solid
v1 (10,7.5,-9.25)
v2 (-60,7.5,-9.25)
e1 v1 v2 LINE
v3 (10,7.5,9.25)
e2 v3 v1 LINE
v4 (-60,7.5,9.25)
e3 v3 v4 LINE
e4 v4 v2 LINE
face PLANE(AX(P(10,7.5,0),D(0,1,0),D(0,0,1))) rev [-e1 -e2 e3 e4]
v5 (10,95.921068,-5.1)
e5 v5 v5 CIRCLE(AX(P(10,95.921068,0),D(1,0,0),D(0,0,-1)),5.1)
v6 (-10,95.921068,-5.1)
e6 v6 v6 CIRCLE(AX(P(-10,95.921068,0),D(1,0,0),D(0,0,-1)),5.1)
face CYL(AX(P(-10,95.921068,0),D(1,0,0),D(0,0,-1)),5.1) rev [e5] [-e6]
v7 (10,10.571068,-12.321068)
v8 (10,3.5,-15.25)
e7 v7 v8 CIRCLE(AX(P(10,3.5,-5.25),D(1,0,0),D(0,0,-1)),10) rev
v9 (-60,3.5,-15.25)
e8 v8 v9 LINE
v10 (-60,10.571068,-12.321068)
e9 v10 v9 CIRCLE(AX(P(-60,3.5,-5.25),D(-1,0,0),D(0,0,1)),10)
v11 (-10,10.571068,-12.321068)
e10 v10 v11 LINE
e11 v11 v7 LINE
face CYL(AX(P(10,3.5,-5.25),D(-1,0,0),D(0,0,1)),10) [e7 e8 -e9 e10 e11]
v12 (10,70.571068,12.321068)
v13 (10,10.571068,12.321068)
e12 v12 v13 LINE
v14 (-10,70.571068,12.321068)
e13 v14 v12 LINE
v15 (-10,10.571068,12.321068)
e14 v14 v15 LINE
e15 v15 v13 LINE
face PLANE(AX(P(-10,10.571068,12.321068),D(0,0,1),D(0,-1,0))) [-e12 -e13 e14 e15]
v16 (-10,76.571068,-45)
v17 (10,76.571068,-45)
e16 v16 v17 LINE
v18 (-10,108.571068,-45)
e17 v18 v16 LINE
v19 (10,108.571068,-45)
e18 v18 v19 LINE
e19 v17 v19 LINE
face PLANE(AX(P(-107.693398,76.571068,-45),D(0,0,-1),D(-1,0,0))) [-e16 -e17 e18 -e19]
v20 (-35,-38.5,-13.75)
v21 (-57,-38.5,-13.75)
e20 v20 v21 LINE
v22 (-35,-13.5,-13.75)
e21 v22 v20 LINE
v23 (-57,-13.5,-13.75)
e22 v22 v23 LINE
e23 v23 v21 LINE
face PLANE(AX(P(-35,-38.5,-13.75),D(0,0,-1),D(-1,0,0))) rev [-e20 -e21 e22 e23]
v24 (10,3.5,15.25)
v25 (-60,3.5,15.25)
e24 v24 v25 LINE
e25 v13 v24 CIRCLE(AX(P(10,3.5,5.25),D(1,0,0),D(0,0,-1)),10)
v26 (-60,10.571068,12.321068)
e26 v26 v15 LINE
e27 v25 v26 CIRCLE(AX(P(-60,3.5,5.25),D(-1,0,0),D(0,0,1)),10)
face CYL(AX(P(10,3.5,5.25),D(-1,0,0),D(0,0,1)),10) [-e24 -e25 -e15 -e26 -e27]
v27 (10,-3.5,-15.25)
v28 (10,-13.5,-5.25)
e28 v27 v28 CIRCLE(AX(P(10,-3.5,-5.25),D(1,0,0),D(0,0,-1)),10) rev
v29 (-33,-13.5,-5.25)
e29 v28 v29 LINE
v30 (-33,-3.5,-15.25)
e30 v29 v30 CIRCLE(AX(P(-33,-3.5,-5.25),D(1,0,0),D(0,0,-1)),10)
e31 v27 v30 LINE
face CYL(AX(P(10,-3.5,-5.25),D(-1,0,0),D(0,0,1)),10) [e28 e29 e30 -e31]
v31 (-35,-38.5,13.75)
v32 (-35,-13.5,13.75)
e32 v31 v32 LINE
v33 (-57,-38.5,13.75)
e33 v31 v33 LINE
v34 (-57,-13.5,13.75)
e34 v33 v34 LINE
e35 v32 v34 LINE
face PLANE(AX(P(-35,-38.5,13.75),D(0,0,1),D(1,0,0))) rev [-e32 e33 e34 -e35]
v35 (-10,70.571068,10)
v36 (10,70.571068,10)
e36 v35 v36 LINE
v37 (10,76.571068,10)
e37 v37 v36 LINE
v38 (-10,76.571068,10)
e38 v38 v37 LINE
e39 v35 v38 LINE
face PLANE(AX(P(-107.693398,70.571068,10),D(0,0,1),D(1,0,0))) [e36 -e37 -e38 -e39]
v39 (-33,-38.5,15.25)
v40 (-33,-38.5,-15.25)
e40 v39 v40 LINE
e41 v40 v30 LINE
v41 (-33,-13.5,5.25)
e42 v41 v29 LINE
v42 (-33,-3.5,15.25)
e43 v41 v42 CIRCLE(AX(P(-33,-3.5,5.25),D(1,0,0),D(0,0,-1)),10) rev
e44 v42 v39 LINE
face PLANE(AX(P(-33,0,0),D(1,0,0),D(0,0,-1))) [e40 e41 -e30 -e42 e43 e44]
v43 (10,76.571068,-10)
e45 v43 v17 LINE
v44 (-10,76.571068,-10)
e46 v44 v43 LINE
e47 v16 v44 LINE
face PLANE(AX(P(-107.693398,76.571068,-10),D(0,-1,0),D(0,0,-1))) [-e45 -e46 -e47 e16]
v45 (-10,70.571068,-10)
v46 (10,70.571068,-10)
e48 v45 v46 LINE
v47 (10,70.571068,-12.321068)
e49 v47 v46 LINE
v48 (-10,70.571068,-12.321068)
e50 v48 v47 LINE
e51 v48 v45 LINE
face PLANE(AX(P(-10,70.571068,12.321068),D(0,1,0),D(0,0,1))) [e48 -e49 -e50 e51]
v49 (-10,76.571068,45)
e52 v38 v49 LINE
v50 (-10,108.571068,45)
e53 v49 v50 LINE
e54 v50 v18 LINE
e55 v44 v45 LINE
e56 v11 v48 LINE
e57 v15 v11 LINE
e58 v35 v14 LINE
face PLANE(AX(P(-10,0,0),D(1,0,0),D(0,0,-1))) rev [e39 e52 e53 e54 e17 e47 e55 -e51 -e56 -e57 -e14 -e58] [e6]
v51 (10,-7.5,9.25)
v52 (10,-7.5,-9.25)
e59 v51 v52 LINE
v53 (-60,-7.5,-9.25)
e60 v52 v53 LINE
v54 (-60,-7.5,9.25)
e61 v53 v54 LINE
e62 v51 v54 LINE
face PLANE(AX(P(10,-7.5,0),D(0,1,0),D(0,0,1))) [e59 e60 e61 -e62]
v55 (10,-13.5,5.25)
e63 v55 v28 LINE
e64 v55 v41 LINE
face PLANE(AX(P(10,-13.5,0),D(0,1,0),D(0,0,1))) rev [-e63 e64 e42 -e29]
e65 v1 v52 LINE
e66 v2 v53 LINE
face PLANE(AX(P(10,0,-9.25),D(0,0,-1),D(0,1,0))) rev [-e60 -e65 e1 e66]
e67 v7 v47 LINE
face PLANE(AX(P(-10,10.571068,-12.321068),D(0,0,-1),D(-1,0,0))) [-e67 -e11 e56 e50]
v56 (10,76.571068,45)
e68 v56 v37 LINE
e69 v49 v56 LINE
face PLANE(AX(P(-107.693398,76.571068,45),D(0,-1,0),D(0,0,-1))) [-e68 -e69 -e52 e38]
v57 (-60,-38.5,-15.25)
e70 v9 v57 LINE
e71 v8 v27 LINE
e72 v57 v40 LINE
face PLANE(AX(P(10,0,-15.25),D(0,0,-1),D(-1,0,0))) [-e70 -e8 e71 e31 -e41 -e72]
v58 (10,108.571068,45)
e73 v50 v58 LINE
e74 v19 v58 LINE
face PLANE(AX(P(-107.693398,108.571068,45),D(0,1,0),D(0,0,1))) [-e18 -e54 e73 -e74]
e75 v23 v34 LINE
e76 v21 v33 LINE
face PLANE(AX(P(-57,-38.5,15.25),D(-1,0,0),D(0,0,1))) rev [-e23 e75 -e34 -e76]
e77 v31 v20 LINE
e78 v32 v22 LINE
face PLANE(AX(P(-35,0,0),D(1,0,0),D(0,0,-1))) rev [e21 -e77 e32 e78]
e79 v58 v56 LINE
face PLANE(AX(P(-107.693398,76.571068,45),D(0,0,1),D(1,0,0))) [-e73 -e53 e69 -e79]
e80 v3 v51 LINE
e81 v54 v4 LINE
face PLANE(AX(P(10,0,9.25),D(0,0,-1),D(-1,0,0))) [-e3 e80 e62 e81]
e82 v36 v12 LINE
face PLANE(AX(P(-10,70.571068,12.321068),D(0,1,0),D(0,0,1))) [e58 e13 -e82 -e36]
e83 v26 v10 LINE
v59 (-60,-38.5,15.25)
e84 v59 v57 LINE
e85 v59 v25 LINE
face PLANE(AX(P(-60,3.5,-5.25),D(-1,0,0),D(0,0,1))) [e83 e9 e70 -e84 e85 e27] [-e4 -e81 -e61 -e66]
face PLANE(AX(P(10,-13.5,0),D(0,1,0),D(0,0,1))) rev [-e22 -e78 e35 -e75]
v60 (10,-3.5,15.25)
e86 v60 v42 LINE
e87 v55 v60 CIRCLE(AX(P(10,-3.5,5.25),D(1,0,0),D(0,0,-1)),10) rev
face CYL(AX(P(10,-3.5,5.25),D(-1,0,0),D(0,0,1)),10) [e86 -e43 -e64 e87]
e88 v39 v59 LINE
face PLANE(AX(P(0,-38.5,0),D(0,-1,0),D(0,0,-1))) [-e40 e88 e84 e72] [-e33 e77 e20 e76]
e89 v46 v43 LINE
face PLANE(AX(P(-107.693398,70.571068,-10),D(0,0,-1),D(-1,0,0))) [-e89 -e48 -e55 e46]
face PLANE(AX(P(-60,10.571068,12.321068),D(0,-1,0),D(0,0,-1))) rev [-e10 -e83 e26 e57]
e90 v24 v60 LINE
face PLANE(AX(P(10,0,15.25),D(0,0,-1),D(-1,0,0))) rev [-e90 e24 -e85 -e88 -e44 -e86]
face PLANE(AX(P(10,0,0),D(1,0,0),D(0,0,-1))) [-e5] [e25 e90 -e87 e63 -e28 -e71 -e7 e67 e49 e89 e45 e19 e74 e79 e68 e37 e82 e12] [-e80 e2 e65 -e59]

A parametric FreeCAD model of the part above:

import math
import FreeCAD as App
import Part
import Sketcher
from FreeCAD import Vector


def add_polygon(sketch, points):
    """Adds a closed chain of lines whose ends are joined by coincident constraints."""
    first, n = sketch.GeometryCount, len(points)
    for a, b in zip(points, points[1:] + points[:1]):
        sketch.addGeometry(Part.LineSegment(App.Vector(*a, 0), App.Vector(*b, 0)), False)
    for i in range(n):
        sketch.addConstraint(Sketcher.Constraint("Coincident", first + i, 2, first + (i + 1) % n, 1))

doc = App.newDocument("Part")
body = doc.addObject("PartDesign::Body", "Body")

sketch1 = body.newObject("Sketcher::SketchObject", "Sketch")
sketch1.AttachmentSupport = (doc.getObject("YZ_Plane"), [""])
sketch1.MapMode = "FlatFace"
sketch1.addGeometry(Part.LineSegment(Vector(14, -5, 0), Vector(14, 5, 0)), False)
sketch1.addGeometry(Part.ArcOfCircle(Part.Circle(Vector(4, 5, 0), Vector(0, 0, 1), 10), math.radians(0), math.radians(90)), False)
sketch1.addGeometry(Part.LineSegment(Vector(4, 15, 0), Vector(-4, 15, 0)), False)
sketch1.addGeometry(Part.ArcOfCircle(Part.Circle(Vector(-4, 5, 0), Vector(0, 0, 1), 10), math.radians(90), math.radians(180)), False)
sketch1.addGeometry(Part.LineSegment(Vector(-14, 5, 0), Vector(-14, -5, 0)), False)
sketch1.addGeometry(Part.ArcOfCircle(Part.Circle(Vector(-4, -5, 0), Vector(0, 0, 1), 10), math.radians(180), math.radians(270)), False)
sketch1.addGeometry(Part.LineSegment(Vector(-4, -15, 0), Vector(4, -15, 0)), False)
sketch1.addGeometry(Part.ArcOfCircle(Part.Circle(Vector(4, -5, 0), Vector(0, 0, 1), 10), math.radians(-90), math.radians(0)), False)
add_polygon(sketch1, [(-8, -9), (-8, 9), (8, 9), (8, -9)])
sketch1.addConstraint(Sketcher.Constraint("Tangent", 0, 2, 1, 1))
sketch1.addConstraint(Sketcher.Constraint("Tangent", 1, 2, 2, 1))
sketch1.addConstraint(Sketcher.Constraint("Tangent", 2, 2, 3, 1))
sketch1.addConstraint(Sketcher.Constraint("Tangent", 3, 2, 4, 1))
sketch1.addConstraint(Sketcher.Constraint("Tangent", 4, 2, 5, 1))
sketch1.addConstraint(Sketcher.Constraint("Tangent", 5, 2, 6, 1))
sketch1.addConstraint(Sketcher.Constraint("Tangent", 6, 2, 7, 1))
sketch1.addConstraint(Sketcher.Constraint("Tangent", 7, 2, 0, 1))
sketch1.addConstraint(Sketcher.Constraint("Vertical", 0))
sketch1.addConstraint(Sketcher.Constraint("Horizontal", 2))
sketch1.addConstraint(Sketcher.Constraint("Vertical", 4))
sketch1.addConstraint(Sketcher.Constraint("Horizontal", 6))
sketch1.addConstraint(Sketcher.Constraint("Vertical", 8))
sketch1.addConstraint(Sketcher.Constraint("Horizontal", 9))
sketch1.addConstraint(Sketcher.Constraint("Vertical", 10))
sketch1.addConstraint(Sketcher.Constraint("Horizontal", 11))
sketch1.addConstraint(Sketcher.Constraint("Equal", 1, 3))
sketch1.addConstraint(Sketcher.Constraint("Equal", 3, 5))
sketch1.addConstraint(Sketcher.Constraint("Equal", 5, 7))
sketch1.addConstraint(Sketcher.Constraint("Symmetric", 1, 3, 5, 3, -1, 1))
sketch1.addConstraint(Sketcher.Constraint("Symmetric", 8, 2, 10, 2, -1, 1))
sketch1.addConstraint(Sketcher.Constraint("Radius", 1, 10.0))
sketch1.addConstraint(Sketcher.Constraint("DistanceX", 2, 2, 2, 1, 7.0))
sketch1.addConstraint(Sketcher.Constraint("DistanceX", 9, 1, 9, 2, 15.0))
sketch1.addConstraint(Sketcher.Constraint("DistanceY", 0, 1, 0, 2, 10.5))
sketch1.addConstraint(Sketcher.Constraint("DistanceY", 8, 1, 8, 2, 18.5))
pad1 = body.newObject("PartDesign::Pad", "Pad")
pad1.Profile = sketch1
pad1.Length = 20
pad1.Midplane = True

sketch2 = body.newObject("Sketcher::SketchObject", "Sketch001")
sketch2.AttachmentSupport = (doc.getObject("YZ_Plane"), [""])
sketch2.MapMode = "FlatFace"
sketch2.AttachmentOffset = App.Placement(Vector(0, 0, 10), App.Rotation())
add_polygon(sketch2, [(11, 12), (11, -12), (71, -12), (71, 12)])
sketch2.addConstraint(Sketcher.Constraint("Vertical", 0))
sketch2.addConstraint(Sketcher.Constraint("Horizontal", 1))
sketch2.addConstraint(Sketcher.Constraint("Vertical", 2))
sketch2.addConstraint(Sketcher.Constraint("Horizontal", 3))
sketch2.addConstraint(Sketcher.Constraint("DistanceX", 1, 1, 1, 2, 60.0))
sketch2.addConstraint(Sketcher.Constraint("DistanceY", 0, 2, 0, 1, 24.642136))
sketch2.addConstraint(Sketcher.Constraint("DistanceX", -1, 1, 0, 2, 10.571068))
sketch2.addConstraint(Sketcher.Constraint("DistanceY", 0, 2, -1, 1, 12.321068))
pad2 = body.newObject("PartDesign::Pad", "Pad001")
pad2.Profile = sketch2
pad2.Length = 20
pad2.Reversed = True

sketch3 = body.newObject("Sketcher::SketchObject", "Sketch002")
sketch3.AttachmentSupport = (doc.getObject("YZ_Plane"), [""])
sketch3.MapMode = "FlatFace"
sketch3.AttachmentOffset = App.Placement(Vector(0, 0, 10), App.Rotation())
add_polygon(sketch3, [(77, 10), (71, 10), (71, -10), (77, -10), (77, -45), (109, -45), (109, 45), (77, 45)])
sketch3.addConstraint(Sketcher.Constraint("Horizontal", 0))
sketch3.addConstraint(Sketcher.Constraint("Vertical", 1))
sketch3.addConstraint(Sketcher.Constraint("Horizontal", 2))
sketch3.addConstraint(Sketcher.Constraint("Vertical", 3))
sketch3.addConstraint(Sketcher.Constraint("Horizontal", 4))
sketch3.addConstraint(Sketcher.Constraint("Vertical", 5))
sketch3.addConstraint(Sketcher.Constraint("Horizontal", 6))
sketch3.addConstraint(Sketcher.Constraint("Vertical", 7))
sketch3.addConstraint(Sketcher.Constraint("Symmetric", 3, 2, 6, 2, -1))
sketch3.addConstraint(Sketcher.Constraint("Equal", 3, 7))
sketch3.addConstraint(Sketcher.Constraint("DistanceX", 0, 2, 0, 1, 6.0))
sketch3.addConstraint(Sketcher.Constraint("DistanceX", 4, 1, 4, 2, 32.0))
sketch3.addConstraint(Sketcher.Constraint("DistanceY", 1, 2, 1, 1, 20.0))
sketch3.addConstraint(Sketcher.Constraint("DistanceY", 3, 2, 3, 1, 35.0))
sketch3.addConstraint(Sketcher.Constraint("DistanceX", -1, 1, 0, 2, 70.571068))
pad3 = body.newObject("PartDesign::Pad", "Pad002")
pad3.Profile = sketch3
pad3.Length = 20
pad3.Reversed = True

sketch4 = body.newObject("Sketcher::SketchObject", "Sketch003")
sketch4.AttachmentSupport = (doc.getObject("YZ_Plane"), [""])
sketch4.MapMode = "FlatFace"
sketch4.AttachmentOffset = App.Placement(Vector(0, 0, 10), App.Rotation())
sketch4.addGeometry(Part.Circle(Vector(96, 0, 0), Vector(0, 0, 1), 5), False)
sketch4.addConstraint(Sketcher.Constraint("PointOnObject", 0, 3, -1))
sketch4.addConstraint(Sketcher.Constraint("Diameter", 0, 10.2))
sketch4.addConstraint(Sketcher.Constraint("DistanceX", -1, 1, 0, 3, 95.921068))
pocket1 = body.newObject("PartDesign::Pocket", "Pocket")
pocket1.Profile = sketch4
pocket1.Type = "ThroughAll"

sketch5 = body.newObject("Sketcher::SketchObject", "Sketch004")
sketch5.AttachmentSupport = (doc.getObject("YZ_Plane"), [""])
sketch5.MapMode = "FlatFace"
sketch5.AttachmentOffset = App.Placement(Vector(0, 0, -10), App.Rotation())
sketch5.addGeometry(Part.LineSegment(Vector(11, 12, 0), Vector(11, -12, 0)), False)
sketch5.addGeometry(Part.ArcOfCircle(Part.Circle(Vector(4, -5, 0), Vector(0, 0, 1), 10), math.radians(-90), math.radians(-45)), False)
sketch5.addGeometry(Part.LineSegment(Vector(4, -15, 0), Vector(-4, -15, 0)), False)
sketch5.addGeometry(Part.ArcOfCircle(Part.Circle(Vector(-4, -5, 0), Vector(0, 0, 1), 10), math.radians(180), math.radians(270)), False)
sketch5.addGeometry(Part.LineSegment(Vector(-14, -5, 0), Vector(-14, 5, 0)), False)
sketch5.addGeometry(Part.ArcOfCircle(Part.Circle(Vector(-4, 5, 0), Vector(0, 0, 1), 10), math.radians(90), math.radians(180)), False)
sketch5.addGeometry(Part.LineSegment(Vector(-4, 15, 0), Vector(4, 15, 0)), False)
sketch5.addGeometry(Part.ArcOfCircle(Part.Circle(Vector(4, 5, 0), Vector(0, 0, 1), 10), math.radians(45), math.radians(90)), False)
add_polygon(sketch5, [(-8, -9), (8, -9), (8, 9), (-8, 9)])
sketch5.addConstraint(Sketcher.Constraint("Coincident", 0, 2, 1, 2))
sketch5.addConstraint(Sketcher.Constraint("Tangent", 1, 1, 2, 1))
sketch5.addConstraint(Sketcher.Constraint("Tangent", 2, 2, 3, 2))
sketch5.addConstraint(Sketcher.Constraint("Tangent", 3, 1, 4, 1))
sketch5.addConstraint(Sketcher.Constraint("Tangent", 4, 2, 5, 2))
sketch5.addConstraint(Sketcher.Constraint("Tangent", 5, 1, 6, 1))
sketch5.addConstraint(Sketcher.Constraint("Tangent", 6, 2, 7, 2))
sketch5.addConstraint(Sketcher.Constraint("Coincident", 7, 1, 0, 1))
sketch5.addConstraint(Sketcher.Constraint("Vertical", 0))
sketch5.addConstraint(Sketcher.Constraint("Horizontal", 2))
sketch5.addConstraint(Sketcher.Constraint("Vertical", 4))
sketch5.addConstraint(Sketcher.Constraint("Horizontal", 6))
sketch5.addConstraint(Sketcher.Constraint("Horizontal", 8))
sketch5.addConstraint(Sketcher.Constraint("Vertical", 9))
sketch5.addConstraint(Sketcher.Constraint("Horizontal", 10))
sketch5.addConstraint(Sketcher.Constraint("Vertical", 11))
sketch5.addConstraint(Sketcher.Constraint("Equal", 1, 3))
sketch5.addConstraint(Sketcher.Constraint("Equal", 3, 5))
sketch5.addConstraint(Sketcher.Constraint("Equal", 5, 7))
sketch5.addConstraint(Sketcher.Constraint("Symmetric", 1, 3, 5, 3, -1, 1))
sketch5.addConstraint(Sketcher.Constraint("Symmetric", 8, 2, 10, 2, -1, 1))
sketch5.addConstraint(Sketcher.Constraint("Vertical", 1, 3, 7, 3))
sketch5.addConstraint(Sketcher.Constraint("Radius", 1, 10.0))
sketch5.addConstraint(Sketcher.Constraint("DistanceX", 2, 2, 2, 1, 7.0))
sketch5.addConstraint(Sketcher.Constraint("DistanceX", 8, 1, 8, 2, 15.0))
sketch5.addConstraint(Sketcher.Constraint("DistanceY", 4, 1, 4, 2, 10.5))
sketch5.addConstraint(Sketcher.Constraint("DistanceY", 9, 1, 9, 2, 18.5))
sketch5.addConstraint(Sketcher.Constraint("DistanceY", 0, 2, 0, 1, 24.642136))
pad4 = body.newObject("PartDesign::Pad", "Pad003")
pad4.Profile = sketch5
pad4.Length = 50
pad4.Reversed = True

sketch6 = body.newObject("Sketcher::SketchObject", "Sketch005")
sketch6.AttachmentSupport = (doc.getObject("YZ_Plane"), [""])
sketch6.MapMode = "FlatFace"
sketch6.AttachmentOffset = App.Placement(Vector(0, 0, -60), App.Rotation())
add_polygon(sketch6, [(-13.5, 15.2), (-3.5, 15.2), (-3.5, 9.2), (-7.5, 9.2), (-7.5, -9.2), (-3.5, -9.2), (-3.5, -15.2), (-13.5, -15.2)])
sketch6.addConstraint(Sketcher.Constraint("Horizontal", 0))
sketch6.addConstraint(Sketcher.Constraint("Vertical", 1))
sketch6.addConstraint(Sketcher.Constraint("Horizontal", 2))
sketch6.addConstraint(Sketcher.Constraint("Vertical", 3))
sketch6.addConstraint(Sketcher.Constraint("Horizontal", 4))
sketch6.addConstraint(Sketcher.Constraint("Vertical", 5))
sketch6.addConstraint(Sketcher.Constraint("Horizontal", 6))
sketch6.addConstraint(Sketcher.Constraint("Vertical", 7))
sketch6.addConstraint(Sketcher.Constraint("Symmetric", 1, 2, 4, 2, -1))
sketch6.addConstraint(Sketcher.Constraint("Equal", 1, 5))
sketch6.addConstraint(Sketcher.Constraint("DistanceX", 0, 1, 0, 2, 10.0))
sketch6.addConstraint(Sketcher.Constraint("DistanceX", 2, 2, 2, 1, 4.0))
sketch6.addConstraint(Sketcher.Constraint("DistanceY", 1, 2, 1, 1, 6.0))
sketch6.addConstraint(Sketcher.Constraint("DistanceY", 3, 2, 3, 1, 18.5))
sketch6.addConstraint(Sketcher.Constraint("DistanceX", 0, 2, -1, 1, 3.5))
pad5 = body.newObject("PartDesign::Pad", "Pad004")
pad5.Profile = sketch6
pad5.Length = 25

sketch7 = body.newObject("Sketcher::SketchObject", "Sketch006")
sketch7.AttachmentSupport = (doc.getObject("XZ_Plane"), [""])
sketch7.MapMode = "FlatFace"
sketch7.AttachmentOffset = App.Placement(Vector(0, 0, 13.5), App.Rotation())
add_polygon(sketch7, [(-60, 15.2), (-60, -15.2), (-57, -15.2), (-57, 15.2)])
sketch7.addConstraint(Sketcher.Constraint("Vertical", 0))
sketch7.addConstraint(Sketcher.Constraint("Horizontal", 1))
sketch7.addConstraint(Sketcher.Constraint("Vertical", 2))
sketch7.addConstraint(Sketcher.Constraint("Horizontal", 3))
sketch7.addConstraint(Sketcher.Constraint("DistanceX", 1, 1, 1, 2, 3.0))
sketch7.addConstraint(Sketcher.Constraint("DistanceY", 0, 2, 0, 1, 30.5))
sketch7.addConstraint(Sketcher.Constraint("DistanceX", 0, 2, -1, 1, 60.0))
sketch7.addConstraint(Sketcher.Constraint("DistanceY", 0, 2, -1, 1, 15.25))
pad6 = body.newObject("PartDesign::Pad", "Pad005")
pad6.Profile = sketch7
pad6.Length = 25

sketch8 = body.newObject("Sketcher::SketchObject", "Sketch007")
sketch8.AttachmentSupport = (doc.getObject("YZ_Plane"), [""])
sketch8.MapMode = "FlatFace"
sketch8.AttachmentOffset = App.Placement(Vector(0, 0, -57), App.Rotation())
add_polygon(sketch8, [(-38.5, 15.2), (-38.5, 13.8), (-13.5, 13.8), (-13.5, 15.2)])
add_polygon(sketch8, [(-38.5, -13.8), (-38.5, -15.2), (-13.5, -15.2), (-13.5, -13.8)])
sketch8.addConstraint(Sketcher.Constraint("Vertical", 0))
sketch8.addConstraint(Sketcher.Constraint("Horizontal", 1))
sketch8.addConstraint(Sketcher.Constraint("Vertical", 2))
sketch8.addConstraint(Sketcher.Constraint("Horizontal", 3))
sketch8.addConstraint(Sketcher.Constraint("Vertical", 4))
sketch8.addConstraint(Sketcher.Constraint("Horizontal", 5))
sketch8.addConstraint(Sketcher.Constraint("Vertical", 6))
sketch8.addConstraint(Sketcher.Constraint("Horizontal", 7))
sketch8.addConstraint(Sketcher.Constraint("Symmetric", 3, 2, 4, 2, -1))
sketch8.addConstraint(Sketcher.Constraint("Symmetric", 1, 2, 6, 2, -1))
sketch8.addConstraint(Sketcher.Constraint("DistanceX", 1, 1, 1, 2, 25.0))
sketch8.addConstraint(Sketcher.Constraint("DistanceY", 0, 2, 0, 1, 1.5))
sketch8.addConstraint(Sketcher.Constraint("DistanceY", 4, 2, 0, 2, 29.0))
sketch8.addConstraint(Sketcher.Constraint("DistanceX", 0, 2, -1, 1, 38.5))
pad7 = body.newObject("PartDesign::Pad", "Pad006")
pad7.Profile = sketch8
pad7.Length = 22

sketch9 = body.newObject("Sketcher::SketchObject", "Sketch008")
sketch9.AttachmentSupport = (doc.getObject("YZ_Plane"), [""])
sketch9.MapMode = "FlatFace"
sketch9.AttachmentOffset = App.Placement(Vector(0, 0, -33), App.Rotation())
sketch9.addGeometry(Part.LineSegment(Vector(-4, 15, 0), Vector(-38, 15, 0)), False)
sketch9.addGeometry(Part.LineSegment(Vector(-38, 15, 0), Vector(-38, -15, 0)), False)
sketch9.addGeometry(Part.LineSegment(Vector(-38, -15, 0), Vector(-4, -15, 0)), False)
sketch9.addGeometry(Part.ArcOfCircle(Part.Circle(Vector(-4, -5, 0), Vector(0, 0, 1), 10), math.radians(180), math.radians(270)), False)
sketch9.addGeometry(Part.LineSegment(Vector(-14, -5, 0), Vector(-14, 5, 0)), False)
sketch9.addGeometry(Part.ArcOfCircle(Part.Circle(Vector(-4, 5, 0), Vector(0, 0, 1), 10), math.radians(90), math.radians(180)), False)
sketch9.addConstraint(Sketcher.Constraint("Coincident", 0, 2, 1, 1))
sketch9.addConstraint(Sketcher.Constraint("Coincident", 1, 2, 2, 1))
sketch9.addConstraint(Sketcher.Constraint("Tangent", 2, 2, 3, 2))
sketch9.addConstraint(Sketcher.Constraint("Tangent", 3, 1, 4, 1))
sketch9.addConstraint(Sketcher.Constraint("Tangent", 4, 2, 5, 2))
sketch9.addConstraint(Sketcher.Constraint("Tangent", 5, 1, 0, 1))
sketch9.addConstraint(Sketcher.Constraint("Horizontal", 0))
sketch9.addConstraint(Sketcher.Constraint("Vertical", 1))
sketch9.addConstraint(Sketcher.Constraint("Horizontal", 2))
sketch9.addConstraint(Sketcher.Constraint("Vertical", 4))
sketch9.addConstraint(Sketcher.Constraint("Equal", 3, 5))
sketch9.addConstraint(Sketcher.Constraint("Radius", 3, 10.0))
sketch9.addConstraint(Sketcher.Constraint("DistanceX", 0, 2, 0, 1, 35.0))
sketch9.addConstraint(Sketcher.Constraint("DistanceY", 1, 2, 1, 1, 30.5))
sketch9.addConstraint(Sketcher.Constraint("DistanceX", 3, 3, -1, 1, 3.5))
sketch9.addConstraint(Sketcher.Constraint("DistanceY", 3, 3, -1, 1, 5.25))
pad8 = body.newObject("PartDesign::Pad", "Pad007")
pad8.Profile = sketch9
pad8.Length = 2
pad8.Reversed = True

doc.recompute()
